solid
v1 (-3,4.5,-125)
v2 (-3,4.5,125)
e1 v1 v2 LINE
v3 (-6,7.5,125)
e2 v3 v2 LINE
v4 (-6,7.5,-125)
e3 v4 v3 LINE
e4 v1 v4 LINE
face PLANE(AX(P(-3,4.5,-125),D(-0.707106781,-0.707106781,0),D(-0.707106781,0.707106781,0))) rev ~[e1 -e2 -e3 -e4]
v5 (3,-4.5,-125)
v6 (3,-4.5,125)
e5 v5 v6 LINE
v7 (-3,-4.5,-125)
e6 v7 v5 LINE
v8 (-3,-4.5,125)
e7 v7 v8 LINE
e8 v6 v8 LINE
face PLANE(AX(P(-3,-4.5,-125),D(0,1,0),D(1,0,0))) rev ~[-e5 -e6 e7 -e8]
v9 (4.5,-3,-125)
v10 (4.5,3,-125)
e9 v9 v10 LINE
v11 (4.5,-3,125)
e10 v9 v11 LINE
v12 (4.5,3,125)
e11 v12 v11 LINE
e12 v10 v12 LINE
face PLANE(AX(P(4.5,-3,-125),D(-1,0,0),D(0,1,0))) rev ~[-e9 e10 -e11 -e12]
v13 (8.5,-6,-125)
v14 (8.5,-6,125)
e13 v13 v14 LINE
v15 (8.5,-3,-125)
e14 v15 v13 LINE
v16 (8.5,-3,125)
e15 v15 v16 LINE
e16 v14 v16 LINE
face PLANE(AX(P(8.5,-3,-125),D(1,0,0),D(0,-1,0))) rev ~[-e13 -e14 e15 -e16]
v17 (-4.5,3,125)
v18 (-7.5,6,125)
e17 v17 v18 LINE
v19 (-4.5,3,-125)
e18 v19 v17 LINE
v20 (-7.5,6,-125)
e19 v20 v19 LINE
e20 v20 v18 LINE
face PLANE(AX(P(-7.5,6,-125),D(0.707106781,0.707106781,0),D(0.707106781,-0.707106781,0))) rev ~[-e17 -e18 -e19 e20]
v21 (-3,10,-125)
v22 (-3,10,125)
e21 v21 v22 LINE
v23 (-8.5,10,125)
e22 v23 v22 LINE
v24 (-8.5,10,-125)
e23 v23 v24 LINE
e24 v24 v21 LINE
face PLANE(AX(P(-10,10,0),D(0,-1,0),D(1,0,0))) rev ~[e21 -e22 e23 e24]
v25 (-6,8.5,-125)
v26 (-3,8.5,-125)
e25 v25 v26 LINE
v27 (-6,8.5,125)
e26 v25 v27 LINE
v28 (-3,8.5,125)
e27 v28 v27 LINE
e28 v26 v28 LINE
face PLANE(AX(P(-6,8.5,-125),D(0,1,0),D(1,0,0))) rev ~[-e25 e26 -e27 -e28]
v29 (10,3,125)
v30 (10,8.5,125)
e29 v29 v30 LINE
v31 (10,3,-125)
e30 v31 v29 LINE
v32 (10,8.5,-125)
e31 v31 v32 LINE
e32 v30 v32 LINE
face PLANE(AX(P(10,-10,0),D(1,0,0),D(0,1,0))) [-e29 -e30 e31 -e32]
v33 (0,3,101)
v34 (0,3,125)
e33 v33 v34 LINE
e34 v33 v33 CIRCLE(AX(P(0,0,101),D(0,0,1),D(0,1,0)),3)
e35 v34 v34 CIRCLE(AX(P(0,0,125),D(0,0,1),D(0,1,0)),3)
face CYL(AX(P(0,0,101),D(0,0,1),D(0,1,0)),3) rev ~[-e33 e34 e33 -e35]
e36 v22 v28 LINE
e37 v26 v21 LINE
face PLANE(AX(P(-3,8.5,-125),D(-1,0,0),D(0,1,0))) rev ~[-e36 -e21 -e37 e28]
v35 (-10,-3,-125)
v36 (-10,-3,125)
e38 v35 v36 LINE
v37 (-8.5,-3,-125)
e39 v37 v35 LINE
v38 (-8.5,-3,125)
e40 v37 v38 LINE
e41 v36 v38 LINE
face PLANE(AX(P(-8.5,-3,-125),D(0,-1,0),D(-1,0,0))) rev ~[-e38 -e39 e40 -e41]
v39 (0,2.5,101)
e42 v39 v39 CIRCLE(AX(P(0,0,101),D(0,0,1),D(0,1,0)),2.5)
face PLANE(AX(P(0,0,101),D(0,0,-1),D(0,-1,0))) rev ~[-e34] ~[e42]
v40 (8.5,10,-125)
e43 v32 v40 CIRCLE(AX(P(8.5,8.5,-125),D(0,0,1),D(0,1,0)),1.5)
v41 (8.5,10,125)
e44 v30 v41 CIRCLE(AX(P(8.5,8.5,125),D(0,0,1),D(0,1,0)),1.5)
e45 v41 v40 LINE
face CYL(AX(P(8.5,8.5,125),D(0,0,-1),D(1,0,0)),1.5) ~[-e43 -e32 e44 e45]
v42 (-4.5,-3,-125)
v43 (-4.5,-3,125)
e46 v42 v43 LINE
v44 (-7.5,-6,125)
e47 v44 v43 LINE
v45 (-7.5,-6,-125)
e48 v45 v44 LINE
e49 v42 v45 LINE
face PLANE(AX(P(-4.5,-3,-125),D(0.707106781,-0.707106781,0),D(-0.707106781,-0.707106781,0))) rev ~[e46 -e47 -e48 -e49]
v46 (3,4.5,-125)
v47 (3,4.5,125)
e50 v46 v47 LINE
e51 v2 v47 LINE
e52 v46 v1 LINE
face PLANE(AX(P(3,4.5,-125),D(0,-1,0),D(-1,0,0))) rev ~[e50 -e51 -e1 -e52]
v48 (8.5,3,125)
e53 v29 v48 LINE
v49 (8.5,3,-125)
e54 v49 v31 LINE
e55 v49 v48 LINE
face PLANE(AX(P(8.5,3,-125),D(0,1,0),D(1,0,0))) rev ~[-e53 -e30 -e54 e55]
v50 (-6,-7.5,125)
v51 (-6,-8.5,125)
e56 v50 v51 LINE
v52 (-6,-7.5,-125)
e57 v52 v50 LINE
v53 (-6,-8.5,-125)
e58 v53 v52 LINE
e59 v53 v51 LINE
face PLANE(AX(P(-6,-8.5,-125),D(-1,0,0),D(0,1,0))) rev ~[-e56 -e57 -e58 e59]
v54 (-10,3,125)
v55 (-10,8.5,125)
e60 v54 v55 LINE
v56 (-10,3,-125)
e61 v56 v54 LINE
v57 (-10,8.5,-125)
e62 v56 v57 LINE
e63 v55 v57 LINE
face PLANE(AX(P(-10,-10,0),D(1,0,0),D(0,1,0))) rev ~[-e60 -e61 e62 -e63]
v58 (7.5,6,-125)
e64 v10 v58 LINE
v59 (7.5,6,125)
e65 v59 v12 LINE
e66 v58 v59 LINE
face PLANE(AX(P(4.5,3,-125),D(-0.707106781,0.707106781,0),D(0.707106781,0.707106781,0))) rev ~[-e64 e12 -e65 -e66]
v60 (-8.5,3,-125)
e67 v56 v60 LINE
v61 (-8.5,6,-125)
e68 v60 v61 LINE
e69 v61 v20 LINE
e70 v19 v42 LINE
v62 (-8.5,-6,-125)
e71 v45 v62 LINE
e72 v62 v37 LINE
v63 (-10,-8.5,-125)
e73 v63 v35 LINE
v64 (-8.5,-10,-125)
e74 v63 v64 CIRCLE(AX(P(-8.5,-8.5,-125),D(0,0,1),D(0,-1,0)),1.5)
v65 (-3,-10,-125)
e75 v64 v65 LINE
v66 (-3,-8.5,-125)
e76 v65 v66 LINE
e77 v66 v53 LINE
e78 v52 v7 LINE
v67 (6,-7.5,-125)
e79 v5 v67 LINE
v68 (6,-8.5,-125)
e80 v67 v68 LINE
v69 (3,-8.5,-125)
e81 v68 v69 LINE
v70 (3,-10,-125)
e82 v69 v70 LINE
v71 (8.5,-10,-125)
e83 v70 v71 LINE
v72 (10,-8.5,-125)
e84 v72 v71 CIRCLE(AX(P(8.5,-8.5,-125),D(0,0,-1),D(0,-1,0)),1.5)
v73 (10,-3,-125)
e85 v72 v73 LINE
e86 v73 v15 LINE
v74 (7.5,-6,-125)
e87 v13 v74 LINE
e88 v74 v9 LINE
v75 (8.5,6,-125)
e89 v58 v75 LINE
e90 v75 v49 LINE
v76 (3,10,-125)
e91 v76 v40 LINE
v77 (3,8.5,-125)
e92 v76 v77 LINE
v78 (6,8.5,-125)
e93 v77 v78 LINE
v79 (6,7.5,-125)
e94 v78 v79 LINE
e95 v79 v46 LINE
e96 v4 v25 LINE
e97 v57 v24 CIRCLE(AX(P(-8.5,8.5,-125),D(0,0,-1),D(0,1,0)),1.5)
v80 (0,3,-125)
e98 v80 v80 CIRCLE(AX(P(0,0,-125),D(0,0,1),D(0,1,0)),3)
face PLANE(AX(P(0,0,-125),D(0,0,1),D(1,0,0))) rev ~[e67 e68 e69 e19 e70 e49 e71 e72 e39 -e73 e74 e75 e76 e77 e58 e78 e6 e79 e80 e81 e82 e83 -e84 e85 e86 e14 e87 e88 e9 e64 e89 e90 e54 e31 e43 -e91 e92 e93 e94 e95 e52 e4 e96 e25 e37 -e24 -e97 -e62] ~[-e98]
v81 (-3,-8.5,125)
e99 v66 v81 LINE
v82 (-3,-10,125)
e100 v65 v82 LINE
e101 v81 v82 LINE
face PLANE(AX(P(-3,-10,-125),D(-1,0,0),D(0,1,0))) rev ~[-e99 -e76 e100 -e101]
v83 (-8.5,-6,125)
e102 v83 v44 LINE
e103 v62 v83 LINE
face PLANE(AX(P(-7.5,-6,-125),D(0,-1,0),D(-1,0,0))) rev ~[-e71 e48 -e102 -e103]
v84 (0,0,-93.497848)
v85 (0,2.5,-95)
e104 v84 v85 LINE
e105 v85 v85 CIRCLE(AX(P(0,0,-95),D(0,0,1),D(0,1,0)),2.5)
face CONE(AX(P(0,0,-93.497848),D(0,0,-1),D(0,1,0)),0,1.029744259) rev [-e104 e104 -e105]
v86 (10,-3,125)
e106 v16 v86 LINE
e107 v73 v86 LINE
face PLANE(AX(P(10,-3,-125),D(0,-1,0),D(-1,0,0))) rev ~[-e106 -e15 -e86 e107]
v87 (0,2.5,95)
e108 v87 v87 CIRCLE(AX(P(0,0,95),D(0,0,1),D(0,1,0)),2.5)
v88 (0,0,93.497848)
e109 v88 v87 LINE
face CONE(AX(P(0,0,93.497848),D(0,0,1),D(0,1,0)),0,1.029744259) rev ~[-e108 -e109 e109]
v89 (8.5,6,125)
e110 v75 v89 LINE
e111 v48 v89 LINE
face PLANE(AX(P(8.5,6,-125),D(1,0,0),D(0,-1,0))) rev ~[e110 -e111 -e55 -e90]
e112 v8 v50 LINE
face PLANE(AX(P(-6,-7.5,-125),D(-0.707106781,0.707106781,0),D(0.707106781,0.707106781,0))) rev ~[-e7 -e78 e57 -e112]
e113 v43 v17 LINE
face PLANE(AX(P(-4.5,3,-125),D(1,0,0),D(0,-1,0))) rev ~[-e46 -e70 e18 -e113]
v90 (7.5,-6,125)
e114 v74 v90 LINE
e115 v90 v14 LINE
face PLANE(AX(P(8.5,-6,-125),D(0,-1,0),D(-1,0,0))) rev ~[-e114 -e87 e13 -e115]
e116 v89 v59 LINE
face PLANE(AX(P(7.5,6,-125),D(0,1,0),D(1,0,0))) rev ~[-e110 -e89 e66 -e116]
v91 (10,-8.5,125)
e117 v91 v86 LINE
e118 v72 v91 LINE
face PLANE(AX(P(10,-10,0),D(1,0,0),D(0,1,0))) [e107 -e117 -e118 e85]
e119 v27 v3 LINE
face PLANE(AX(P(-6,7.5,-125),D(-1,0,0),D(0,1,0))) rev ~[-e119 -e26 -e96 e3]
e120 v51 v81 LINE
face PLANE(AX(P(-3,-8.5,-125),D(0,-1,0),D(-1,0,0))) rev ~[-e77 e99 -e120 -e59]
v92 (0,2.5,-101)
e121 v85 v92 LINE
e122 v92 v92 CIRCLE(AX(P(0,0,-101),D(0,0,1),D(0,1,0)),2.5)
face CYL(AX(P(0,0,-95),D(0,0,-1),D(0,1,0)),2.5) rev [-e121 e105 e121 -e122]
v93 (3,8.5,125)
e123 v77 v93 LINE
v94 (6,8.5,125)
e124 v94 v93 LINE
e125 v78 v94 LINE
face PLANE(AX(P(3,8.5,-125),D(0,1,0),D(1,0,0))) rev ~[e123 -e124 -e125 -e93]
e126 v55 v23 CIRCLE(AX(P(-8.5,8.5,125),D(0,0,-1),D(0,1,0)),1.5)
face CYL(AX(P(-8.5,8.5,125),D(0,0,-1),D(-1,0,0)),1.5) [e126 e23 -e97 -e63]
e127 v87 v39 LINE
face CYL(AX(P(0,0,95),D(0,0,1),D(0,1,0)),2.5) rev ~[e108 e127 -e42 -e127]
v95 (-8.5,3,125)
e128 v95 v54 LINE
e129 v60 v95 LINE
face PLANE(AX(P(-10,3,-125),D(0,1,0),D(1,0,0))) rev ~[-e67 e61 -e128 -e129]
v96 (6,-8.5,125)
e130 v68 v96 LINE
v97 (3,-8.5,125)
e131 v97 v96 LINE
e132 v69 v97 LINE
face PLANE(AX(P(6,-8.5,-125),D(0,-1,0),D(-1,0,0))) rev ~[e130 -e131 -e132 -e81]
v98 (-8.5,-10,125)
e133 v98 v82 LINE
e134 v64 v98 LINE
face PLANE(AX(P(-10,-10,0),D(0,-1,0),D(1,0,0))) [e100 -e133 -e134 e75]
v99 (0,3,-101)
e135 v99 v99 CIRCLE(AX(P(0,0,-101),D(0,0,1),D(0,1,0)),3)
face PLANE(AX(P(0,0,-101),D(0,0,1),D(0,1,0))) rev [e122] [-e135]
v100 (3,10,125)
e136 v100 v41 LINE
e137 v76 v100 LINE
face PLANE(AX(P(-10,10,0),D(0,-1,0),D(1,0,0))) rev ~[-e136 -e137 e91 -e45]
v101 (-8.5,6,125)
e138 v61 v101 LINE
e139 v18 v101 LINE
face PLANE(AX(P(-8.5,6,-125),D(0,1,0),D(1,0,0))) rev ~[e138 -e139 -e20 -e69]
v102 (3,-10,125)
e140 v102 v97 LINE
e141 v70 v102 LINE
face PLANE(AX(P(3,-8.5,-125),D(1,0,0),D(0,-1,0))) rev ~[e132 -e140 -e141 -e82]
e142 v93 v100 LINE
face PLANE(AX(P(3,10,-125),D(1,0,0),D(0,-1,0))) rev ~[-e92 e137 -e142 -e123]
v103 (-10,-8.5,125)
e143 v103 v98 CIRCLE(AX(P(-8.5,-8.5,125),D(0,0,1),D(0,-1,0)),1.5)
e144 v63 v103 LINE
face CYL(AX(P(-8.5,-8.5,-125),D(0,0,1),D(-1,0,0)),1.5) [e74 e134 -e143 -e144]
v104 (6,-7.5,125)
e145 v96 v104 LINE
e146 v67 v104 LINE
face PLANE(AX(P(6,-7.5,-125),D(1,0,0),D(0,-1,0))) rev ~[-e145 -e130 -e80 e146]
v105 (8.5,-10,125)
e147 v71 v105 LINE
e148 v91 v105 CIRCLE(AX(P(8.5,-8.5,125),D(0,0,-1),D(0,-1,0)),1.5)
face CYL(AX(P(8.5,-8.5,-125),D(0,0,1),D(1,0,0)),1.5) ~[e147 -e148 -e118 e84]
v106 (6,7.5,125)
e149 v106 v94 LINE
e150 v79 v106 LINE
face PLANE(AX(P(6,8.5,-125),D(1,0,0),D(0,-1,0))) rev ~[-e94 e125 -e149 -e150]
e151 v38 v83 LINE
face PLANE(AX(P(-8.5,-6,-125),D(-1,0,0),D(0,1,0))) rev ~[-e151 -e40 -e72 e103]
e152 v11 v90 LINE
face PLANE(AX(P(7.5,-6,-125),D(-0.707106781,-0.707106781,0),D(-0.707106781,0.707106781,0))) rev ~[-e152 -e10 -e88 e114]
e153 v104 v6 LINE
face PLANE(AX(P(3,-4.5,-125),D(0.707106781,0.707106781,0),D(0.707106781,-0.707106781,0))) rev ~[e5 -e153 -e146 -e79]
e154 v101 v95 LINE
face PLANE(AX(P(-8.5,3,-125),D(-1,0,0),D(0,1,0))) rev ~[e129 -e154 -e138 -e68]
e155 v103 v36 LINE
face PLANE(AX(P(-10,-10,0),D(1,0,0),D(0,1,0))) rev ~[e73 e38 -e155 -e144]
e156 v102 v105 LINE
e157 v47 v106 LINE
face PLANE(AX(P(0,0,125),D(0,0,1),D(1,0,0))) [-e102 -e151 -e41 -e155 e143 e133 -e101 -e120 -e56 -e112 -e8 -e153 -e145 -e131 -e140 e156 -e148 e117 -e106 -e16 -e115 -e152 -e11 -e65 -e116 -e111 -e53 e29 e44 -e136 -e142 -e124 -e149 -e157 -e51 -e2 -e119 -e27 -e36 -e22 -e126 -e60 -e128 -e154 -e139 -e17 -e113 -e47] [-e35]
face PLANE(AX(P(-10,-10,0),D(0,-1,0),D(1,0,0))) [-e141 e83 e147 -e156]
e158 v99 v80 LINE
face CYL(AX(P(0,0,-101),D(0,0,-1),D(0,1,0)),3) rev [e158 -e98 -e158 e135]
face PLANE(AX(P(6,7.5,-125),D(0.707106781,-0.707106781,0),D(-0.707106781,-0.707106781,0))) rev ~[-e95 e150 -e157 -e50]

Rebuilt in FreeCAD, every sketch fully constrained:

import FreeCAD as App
import Part
import Sketcher

V = App.Vector
Q = App.Units.Quantity


def edges_at(feature, points):
    """Names of the edges that pass closest to the given points."""
    edges = feature.Shape.Edges
    near = lambda p: min(range(len(edges)), key=lambda i: edges[i].distToShape(Part.Vertex(*p))[0])
    return sorted({f"Edge{near(p) + 1}" for p in points})


def add_polygon(sketch, points):
    """Adds a closed chain of lines whose ends are joined by coincident constraints."""
    first, n = sketch.GeometryCount, len(points)
    for a, b in zip(points, points[1:] + points[:1]):
        sketch.addGeometry(Part.LineSegment(App.Vector(*a, 0), App.Vector(*b, 0)), False)
    for i in range(n):
        sketch.addConstraint(Sketcher.Constraint("Coincident", first + i, 2, first + (i + 1) % n, 1))

doc = App.newDocument("Part")
params = doc.addObject("Spreadsheet::Sheet", "Params")
for row, (alias, value) in enumerate([
    ("sketch1_width", "20 mm"),
    ("pad1_length", "250 mm"),
    ("fillet_radius", "1.5 mm"),
    ("sketch2_width", "1 mm"),
    ("sketch2_height", "6 mm"),
    ("sketch2_height2", "3 mm"),
    ("sketch2_width2", "1.5 mm"),
    ("sketch3_width", "3 mm"),
    ("sketch3_height", "24 mm"),
    ("sketch3_height2", "6 mm"),
    ("sketch3_width2", "0.5 mm"),
    ("groove_angle", "360 deg"),
], start=1):
    params.set(f"A{row}", alias)
    params.set(f"B{row}", "=" + value)
    params.setAlias(f"B{row}", alias)

body = doc.addObject("PartDesign::Body", "Body")

# Sketch on XY plane
sketch1 = doc.addObject("Sketcher::SketchObject", "Sketch")
body.addObject(sketch1)
sketch1.AttachmentSupport = (doc.XY_Plane, [""])
sketch1.MapMode = "FlatFace"
add_polygon(sketch1, [(-10, 10), (-10, -10), (10, -10), (10, 10)])  # lines 0-3
sketch1.addConstraint([
    Sketcher.Constraint("Vertical", 0),
    Sketcher.Constraint("Horizontal", 1),
    Sketcher.Constraint("Vertical", 2),
    Sketcher.Constraint("Horizontal", 3),
    Sketcher.Constraint("Symmetric", 0, 2, 2, 2, -1, 1),
    Sketcher.Constraint("Equal", 3, 0),
    Sketcher.Constraint("DistanceX", 1, 1, 1, 2, 20.0),
])
sketch1.setExpression("Constraints[10]", "Params.sketch1_width")
pad1 = doc.addObject("PartDesign::Pad", "Pad")
body.addObject(pad1)
pad1.Profile = sketch1
pad1.setExpression("Length", "Params.pad1_length")
pad1.Midplane = True
doc.recompute()

fillet = doc.addObject("PartDesign::Fillet", "Fillet")
body.addObject(fillet)
fillet.Base = (pad1, edges_at(pad1, [
    (-10, 10, 0),
    (10, 10, 0),
    (10, -10, 0),
    (-10, -10, 0),
]))
fillet.setExpression("Radius", "Params.fillet_radius")

# Sketch on XY plane
sketch2 = doc.addObject("Sketcher::SketchObject", "Sketch001")
body.addObject(sketch2)
sketch2.AttachmentSupport = (doc.XY_Plane, [""])
sketch2.MapMode = "FlatFace"
sketch2.AttachmentOffset = App.Placement(V(0, 0, -125), App.Rotation())
add_polygon(sketch2, [(10, 3), (10, -3), (8.5, -3), (8.5, -6), (7.5, -6), (4.5, -3), (4.5, 3), (7.5, 6), (8.5, 6), (8.5, 3)])  # lines 0-9
sketch2.addConstraint([
    Sketcher.Constraint("Vertical", 0),
    Sketcher.Constraint("Horizontal", 1),
    Sketcher.Constraint("Vertical", 2),
    Sketcher.Constraint("Horizontal", 3),
    Sketcher.Constraint("Vertical", 5),
    Sketcher.Constraint("Horizontal", 7),
    Sketcher.Constraint("Vertical", 8),
    Sketcher.Constraint("Horizontal", 9),
    Sketcher.Constraint("Symmetric", 3, 2, 6, 2, -1),
    Sketcher.Constraint("Symmetric", 1, 2, 8, 2, -1),
    Sketcher.Constraint("Perpendicular", 4, 6),
    Sketcher.Constraint("Horizontal", 1, 2, 4, 2),
    Sketcher.Constraint("Horizontal", 5, 2, 8, 2),
    Sketcher.Constraint("DistanceX", 3, 2, 3, 1, 1.0),
    Sketcher.Constraint("DistanceY", 0, 2, 0, 1, 6.0),
    Sketcher.Constraint("DistanceY", 2, 2, 2, 1, 3.0),
    Sketcher.Constraint("DistanceX", 1, 2, 1, 1, 1.5),
    Sketcher.Constraint("DistanceX", -1, 1, 0, 2, 10.0),
])
sketch2.setExpression("Constraints[23]", "Params.sketch2_width")
sketch2.setExpression("Constraints[24]", "Params.sketch2_height")
sketch2.setExpression("Constraints[25]", "Params.sketch2_height2")
sketch2.setExpression("Constraints[26]", "Params.sketch2_width2")
pocket1 = doc.addObject("PartDesign::Pocket", "Pocket")
body.addObject(pocket1)
pocket1.Profile = sketch2
pocket1.Type = "ThroughAll"
pocket1.Reversed = True
doc.recompute()

polarpattern = doc.addObject("PartDesign::PolarPattern", "PolarPattern")
body.addObject(polarpattern)
polarpattern.Originals = [pocket1]
polarpattern.Axis = (doc.Z_Axis, [""])
polarpattern.Angle = 360
polarpattern.Occurrences = 4
body.Tip = polarpattern

# Sketch on YZ plane
sketch3 = doc.addObject("Sketcher::SketchObject", "Sketch002")
body.addObject(sketch3)
sketch3.AttachmentSupport = (doc.YZ_Plane, [""])
sketch3.MapMode = "FlatFace"
add_polygon(sketch3, [(0, -93.5), (0, -125), (3, -125), (3, -101), (2.5, -101), (2.5, -95)])  # lines 0-5
sketch3.addConstraint([
    Sketcher.Constraint("Vertical", 0),
    Sketcher.Constraint("Horizontal", 1),
    Sketcher.Constraint("Vertical", 2),
    Sketcher.Constraint("Horizontal", 3),
    Sketcher.Constraint("Vertical", 4),
    Sketcher.Constraint("PointOnObject", 0, 2, -2),
    Sketcher.Constraint("DistanceX", 1, 1, 1, 2, 3.0),
    Sketcher.Constraint("DistanceY", 2, 1, 2, 2, 24.0),
    Sketcher.Constraint("DistanceY", 4, 1, 4, 2, 6.0),
    Sketcher.Constraint("Angle", 5, Q("149 deg")),
    Sketcher.Constraint("DistanceX", 3, 2, 3, 1, 0.5),
    Sketcher.Constraint("DistanceY", 0, 2, -1, 1, 125.0),
])
sketch3.setExpression("Constraints[12]", "Params.sketch3_width")
sketch3.setExpression("Constraints[13]", "Params.sketch3_height")
sketch3.setExpression("Constraints[14]", "Params.sketch3_height2")
sketch3.setExpression("Constraints[16]", "Params.sketch3_width2")
groove = doc.addObject("PartDesign::Groove", "Groove")
body.addObject(groove)
groove.Profile = sketch3
groove.ReferenceAxis = (sketch3, ["V_Axis"])
groove.setExpression("Angle", "Params.groove_angle")
doc.recompute()

mirrored = doc.addObject("PartDesign::Mirrored", "Mirrored")
body.addObject(mirrored)
mirrored.Originals = [groove]
mirrored.MirrorPlane = (doc.XY_Plane, [""])
body.Tip = mirrored

doc.recompute()
